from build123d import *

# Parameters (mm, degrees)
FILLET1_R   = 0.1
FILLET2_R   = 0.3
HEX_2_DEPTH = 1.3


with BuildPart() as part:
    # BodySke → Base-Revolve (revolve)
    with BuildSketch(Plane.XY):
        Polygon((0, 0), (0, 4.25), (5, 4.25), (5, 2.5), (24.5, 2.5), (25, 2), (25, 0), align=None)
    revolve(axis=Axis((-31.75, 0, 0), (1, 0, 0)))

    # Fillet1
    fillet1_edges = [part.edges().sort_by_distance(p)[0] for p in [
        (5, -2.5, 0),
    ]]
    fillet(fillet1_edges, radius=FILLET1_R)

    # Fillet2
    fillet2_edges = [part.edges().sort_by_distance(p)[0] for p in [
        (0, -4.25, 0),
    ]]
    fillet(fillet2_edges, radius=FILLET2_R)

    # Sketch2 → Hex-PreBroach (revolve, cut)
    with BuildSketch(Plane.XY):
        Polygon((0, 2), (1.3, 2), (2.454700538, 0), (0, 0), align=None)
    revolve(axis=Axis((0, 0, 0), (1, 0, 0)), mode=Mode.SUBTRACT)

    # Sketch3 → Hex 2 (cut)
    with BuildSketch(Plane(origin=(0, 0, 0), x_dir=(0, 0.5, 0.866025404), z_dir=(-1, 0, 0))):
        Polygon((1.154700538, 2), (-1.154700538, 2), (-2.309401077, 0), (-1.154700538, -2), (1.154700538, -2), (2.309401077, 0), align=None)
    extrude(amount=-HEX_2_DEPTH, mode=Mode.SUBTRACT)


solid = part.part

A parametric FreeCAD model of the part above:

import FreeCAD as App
import Part
import Sketcher
Q = App.Units.Quantity


def edges_at(feature, points):
    """Names of the edges that pass closest to the given points."""
    edges = feature.Shape.Edges
    near = lambda p: min(range(len(edges)), key=lambda i: edges[i].distToShape(Part.Vertex(*p))[0])
    return sorted({f"Edge{near(p) + 1}" for p in points})


def add_polygon(sketch, points):
    """Adds a closed chain of lines whose ends are joined by coincident constraints."""
    first, n = sketch.GeometryCount, len(points)
    for a, b in zip(points, points[1:] + points[:1]):
        sketch.addGeometry(Part.LineSegment(App.Vector(*a, 0), App.Vector(*b, 0)), False)
    for i in range(n):
        sketch.addConstraint(Sketcher.Constraint("Coincident", first + i, 2, first + (i + 1) % n, 1))

doc = App.newDocument("Part")
body = doc.addObject("PartDesign::Body", "Body")

# Sketch on XY plane
sketch1 = body.newObject("Sketcher::SketchObject", "Sketch")
sketch1.AttachmentSupport = (doc.getObject("XY_Plane"), [""])
sketch1.MapMode = "FlatFace"
add_polygon(sketch1, [(0, 4.2), (0, 0), (25, 0), (25, 2), (24.5, 2.5), (5, 2.5), (5, 4.2)])  # lines 0-6
sketch1.addConstraint(Sketcher.Constraint("Vertical", 0))
sketch1.addConstraint(Sketcher.Constraint("Horizontal", 1))
sketch1.addConstraint(Sketcher.Constraint("Vertical", 2))
sketch1.addConstraint(Sketcher.Constraint("Horizontal", 4))
sketch1.addConstraint(Sketcher.Constraint("Vertical", 5))
sketch1.addConstraint(Sketcher.Constraint("Horizontal", 6))
sketch1.addConstraint(Sketcher.Constraint("Coincident", 0, 2, -1, 1))
sketch1.addConstraint(Sketcher.Constraint("DistanceX", 1, 1, 1, 2, 25.0))
sketch1.addConstraint(Sketcher.Constraint("DistanceX", 6, 2, 6, 1, 5.0))
sketch1.addConstraint(Sketcher.Constraint("DistanceY", 2, 1, 2, 2, 2.0))
sketch1.addConstraint(Sketcher.Constraint("Angle", 3, Q("135 deg")))
sketch1.addConstraint(Sketcher.Constraint("DistanceX", 4, 2, 4, 1, 19.5))
sketch1.addConstraint(Sketcher.Constraint("DistanceY", 0, 2, 0, 1, 4.25))
revolution = body.newObject("PartDesign::Revolution", "Revolution")
revolution.Profile = sketch1
revolution.ReferenceAxis = (sketch1, ["H_Axis"])
revolution.Angle = 360
doc.recompute()

fillet = body.newObject("PartDesign::Fillet", "Fillet")
fillet.Base = (revolution, edges_at(revolution, [(5, -2.5, 0)]))
fillet.Radius = 0.1
doc.recompute()

fillet2 = body.newObject("PartDesign::Fillet", "Fillet001")
fillet2.Base = (fillet, edges_at(fillet, [(0, -4.25, 0)]))
fillet2.Radius = 0.3

# Sketch on XY plane
sketch2 = body.newObject("Sketcher::SketchObject", "Sketch001")
sketch2.AttachmentSupport = (doc.getObject("XY_Plane"), [""])
sketch2.MapMode = "FlatFace"
add_polygon(sketch2, [(1.3, 2), (0, 2), (0, 0), (2.5, 0)])  # lines 0-3
sketch2.addConstraint(Sketcher.Constraint("Horizontal", 0))
sketch2.addConstraint(Sketcher.Constraint("Vertical", 1))
sketch2.addConstraint(Sketcher.Constraint("Horizontal", 2))
sketch2.addConstraint(Sketcher.Constraint("Coincident", 1, 2, -1, 1))
sketch2.addConstraint(Sketcher.Constraint("DistanceY", 1, 2, 1, 1, 2.0))
sketch2.addConstraint(Sketcher.Constraint("Angle", 3, Q("120 deg")))
sketch2.addConstraint(Sketcher.Constraint("DistanceX", 0, 2, 0, 1, 1.3))
groove = body.newObject("PartDesign::Groove", "Groove")
groove.Profile = sketch2
groove.ReferenceAxis = (sketch2, ["H_Axis"])
groove.Angle = 360

# Sketch on YZ plane
sketch3 = body.newObject("Sketcher::SketchObject", "Sketch002")
sketch3.AttachmentSupport = (doc.getObject("YZ_Plane"), [""])
sketch3.MapMode = "FlatFace"
add_polygon(sketch3, [(2.3, 0), (1.2, -2), (-1.2, -2), (-2.3, 0), (-1.2, 2), (1.2, 2)])  # lines 0-5
sketch3.addConstraint(Sketcher.Constraint("Horizontal", 1))
sketch3.addConstraint(Sketcher.Constraint("Horizontal", 4))
sketch3.addConstraint(Sketcher.Constraint("Symmetric", 0, 2, 3, 2, -1, 1))
sketch3.addConstraint(Sketcher.Constraint("Symmetric", 2, 2, 5, 2, -1, 1))
sketch3.addConstraint(Sketcher.Constraint("PointOnObject", 2, 2, -1))
sketch3.addConstraint(Sketcher.Constraint("Parallel", 2, 5))
sketch3.addConstraint(Sketcher.Constraint("Vertical", 1, 2, 3, 2))
sketch3.addConstraint(Sketcher.Constraint("Angle", 0, Q("-120 deg")))
sketch3.addConstraint(Sketcher.Constraint("DistanceY", 0, 2, -1, 1, 2.0))
sketch3.addConstraint(Sketcher.Constraint("DistanceX", 1, 2, 1, 1, 2.309401))
pocket1 = body.newObject("PartDesign::Pocket", "Pocket")
pocket1.Profile = sketch3
pocket1.Length = 1.3
pocket1.Reversed = True

doc.recompute()
